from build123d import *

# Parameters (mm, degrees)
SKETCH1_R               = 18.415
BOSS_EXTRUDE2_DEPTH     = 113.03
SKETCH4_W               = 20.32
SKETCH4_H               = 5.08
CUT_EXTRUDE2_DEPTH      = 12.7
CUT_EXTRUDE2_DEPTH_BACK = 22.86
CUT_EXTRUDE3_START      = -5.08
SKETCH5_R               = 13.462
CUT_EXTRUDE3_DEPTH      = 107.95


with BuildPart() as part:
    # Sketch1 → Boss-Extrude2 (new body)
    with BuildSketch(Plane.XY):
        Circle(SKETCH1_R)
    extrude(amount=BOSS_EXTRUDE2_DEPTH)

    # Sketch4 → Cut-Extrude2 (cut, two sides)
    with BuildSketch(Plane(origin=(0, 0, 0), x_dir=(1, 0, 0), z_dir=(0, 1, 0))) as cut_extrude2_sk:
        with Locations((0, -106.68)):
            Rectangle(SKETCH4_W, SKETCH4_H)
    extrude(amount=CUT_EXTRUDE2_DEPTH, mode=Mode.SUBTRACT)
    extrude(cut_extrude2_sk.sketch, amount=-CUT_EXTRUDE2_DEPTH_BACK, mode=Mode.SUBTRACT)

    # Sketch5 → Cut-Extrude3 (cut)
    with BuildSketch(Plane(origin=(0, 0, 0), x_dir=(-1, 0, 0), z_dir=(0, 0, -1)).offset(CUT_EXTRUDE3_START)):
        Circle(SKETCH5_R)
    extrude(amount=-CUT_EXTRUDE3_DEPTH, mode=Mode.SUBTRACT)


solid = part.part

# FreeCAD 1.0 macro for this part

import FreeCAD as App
import Part
import Sketcher

V = App.Vector
Q = App.Units.Quantity

doc = App.newDocument("Part")
body = doc.addObject("PartDesign::Body", "Body")

sketch1 = body.newObject("Sketcher::SketchObject", "Sketch")
sketch1.AttachmentSupport = (doc.getObject("XY_Plane"), [""])
sketch1.MapMode = "FlatFace"
sketch1.addGeometry(Part.Circle(V(0, 0, 0), V(0, 0, 1), 18), False)
sketch1.addConstraint([
    Sketcher.Constraint("Coincident", 0, 3, -1, 1),
    Sketcher.Constraint("Diameter", 0, Q("1.45 in")),
])
pad1 = body.newObject("PartDesign::Pad", "Pad")
pad1.Profile = sketch1
pad1.Length = Q("4.45 in")

sketch2 = body.newObject("Sketcher::SketchObject", "Sketch001")
sketch2.AttachmentSupport = (doc.getObject("XZ_Plane"), [""])
sketch2.MapMode = "FlatFace"
sketch2.addGeometry([
    Part.LineSegment(V(-10, 104, 0), V(-10, 109, 0)),
    Part.LineSegment(V(-10, 109, 0), V(10, 109, 0)),
    Part.LineSegment(V(10, 109, 0), V(10, 104, 0)),
    Part.LineSegment(V(10, 104, 0), V(-10, 104, 0)),
], False)
sketch2.addConstraint([
    Sketcher.Constraint("Coincident", 0, 2, 1, 1),
    Sketcher.Constraint("Coincident", 1, 2, 2, 1),
    Sketcher.Constraint("Coincident", 2, 2, 3, 1),
    Sketcher.Constraint("Coincident", 3, 2, 0, 1),
    Sketcher.Constraint("Vertical", 0),
    Sketcher.Constraint("Horizontal", 1),
    Sketcher.Constraint("Vertical", 2),
    Sketcher.Constraint("Horizontal", 3),
    Sketcher.Constraint("DistanceX", 1, 1, 1, 2, Q("0.8 in")),
    Sketcher.Constraint("DistanceY", 0, 1, 0, 2, Q("0.2 in")),
    Sketcher.Constraint("DistanceX", 0, 2, -1, 1, Q("0.4 in")),
    Sketcher.Constraint("DistanceY", -1, 1, 0, 2, Q("4.3 in")),
])
pocket1 = body.newObject("PartDesign::Pocket", "Pocket")
pocket1.Profile = sketch2
pocket1.Type = "TwoLengths"
pocket1.Length = Q("0.5 in")
pocket1.Length2 = Q("0.9 in")

sketch3 = body.newObject("Sketcher::SketchObject", "Sketch002")
sketch3.AttachmentSupport = (doc.getObject("XY_Plane"), [""])
sketch3.MapMode = "FlatFace"
sketch3.AttachmentOffset = App.Placement(V(0, 0, 0.2 * 25.4), App.Rotation())
sketch3.addGeometry(Part.Circle(V(0, 0, 0), V(0, 0, 1), 13), False)
sketch3.addConstraint([
    Sketcher.Constraint("Coincident", 0, 3, -1, 1),
    Sketcher.Constraint("Diameter", 0, Q("1.06 in")),
])
pocket2 = body.newObject("PartDesign::Pocket", "Pocket001")
pocket2.Profile = sketch3
pocket2.Length = Q("4.25 in")
pocket2.Reversed = True

doc.recompute()
